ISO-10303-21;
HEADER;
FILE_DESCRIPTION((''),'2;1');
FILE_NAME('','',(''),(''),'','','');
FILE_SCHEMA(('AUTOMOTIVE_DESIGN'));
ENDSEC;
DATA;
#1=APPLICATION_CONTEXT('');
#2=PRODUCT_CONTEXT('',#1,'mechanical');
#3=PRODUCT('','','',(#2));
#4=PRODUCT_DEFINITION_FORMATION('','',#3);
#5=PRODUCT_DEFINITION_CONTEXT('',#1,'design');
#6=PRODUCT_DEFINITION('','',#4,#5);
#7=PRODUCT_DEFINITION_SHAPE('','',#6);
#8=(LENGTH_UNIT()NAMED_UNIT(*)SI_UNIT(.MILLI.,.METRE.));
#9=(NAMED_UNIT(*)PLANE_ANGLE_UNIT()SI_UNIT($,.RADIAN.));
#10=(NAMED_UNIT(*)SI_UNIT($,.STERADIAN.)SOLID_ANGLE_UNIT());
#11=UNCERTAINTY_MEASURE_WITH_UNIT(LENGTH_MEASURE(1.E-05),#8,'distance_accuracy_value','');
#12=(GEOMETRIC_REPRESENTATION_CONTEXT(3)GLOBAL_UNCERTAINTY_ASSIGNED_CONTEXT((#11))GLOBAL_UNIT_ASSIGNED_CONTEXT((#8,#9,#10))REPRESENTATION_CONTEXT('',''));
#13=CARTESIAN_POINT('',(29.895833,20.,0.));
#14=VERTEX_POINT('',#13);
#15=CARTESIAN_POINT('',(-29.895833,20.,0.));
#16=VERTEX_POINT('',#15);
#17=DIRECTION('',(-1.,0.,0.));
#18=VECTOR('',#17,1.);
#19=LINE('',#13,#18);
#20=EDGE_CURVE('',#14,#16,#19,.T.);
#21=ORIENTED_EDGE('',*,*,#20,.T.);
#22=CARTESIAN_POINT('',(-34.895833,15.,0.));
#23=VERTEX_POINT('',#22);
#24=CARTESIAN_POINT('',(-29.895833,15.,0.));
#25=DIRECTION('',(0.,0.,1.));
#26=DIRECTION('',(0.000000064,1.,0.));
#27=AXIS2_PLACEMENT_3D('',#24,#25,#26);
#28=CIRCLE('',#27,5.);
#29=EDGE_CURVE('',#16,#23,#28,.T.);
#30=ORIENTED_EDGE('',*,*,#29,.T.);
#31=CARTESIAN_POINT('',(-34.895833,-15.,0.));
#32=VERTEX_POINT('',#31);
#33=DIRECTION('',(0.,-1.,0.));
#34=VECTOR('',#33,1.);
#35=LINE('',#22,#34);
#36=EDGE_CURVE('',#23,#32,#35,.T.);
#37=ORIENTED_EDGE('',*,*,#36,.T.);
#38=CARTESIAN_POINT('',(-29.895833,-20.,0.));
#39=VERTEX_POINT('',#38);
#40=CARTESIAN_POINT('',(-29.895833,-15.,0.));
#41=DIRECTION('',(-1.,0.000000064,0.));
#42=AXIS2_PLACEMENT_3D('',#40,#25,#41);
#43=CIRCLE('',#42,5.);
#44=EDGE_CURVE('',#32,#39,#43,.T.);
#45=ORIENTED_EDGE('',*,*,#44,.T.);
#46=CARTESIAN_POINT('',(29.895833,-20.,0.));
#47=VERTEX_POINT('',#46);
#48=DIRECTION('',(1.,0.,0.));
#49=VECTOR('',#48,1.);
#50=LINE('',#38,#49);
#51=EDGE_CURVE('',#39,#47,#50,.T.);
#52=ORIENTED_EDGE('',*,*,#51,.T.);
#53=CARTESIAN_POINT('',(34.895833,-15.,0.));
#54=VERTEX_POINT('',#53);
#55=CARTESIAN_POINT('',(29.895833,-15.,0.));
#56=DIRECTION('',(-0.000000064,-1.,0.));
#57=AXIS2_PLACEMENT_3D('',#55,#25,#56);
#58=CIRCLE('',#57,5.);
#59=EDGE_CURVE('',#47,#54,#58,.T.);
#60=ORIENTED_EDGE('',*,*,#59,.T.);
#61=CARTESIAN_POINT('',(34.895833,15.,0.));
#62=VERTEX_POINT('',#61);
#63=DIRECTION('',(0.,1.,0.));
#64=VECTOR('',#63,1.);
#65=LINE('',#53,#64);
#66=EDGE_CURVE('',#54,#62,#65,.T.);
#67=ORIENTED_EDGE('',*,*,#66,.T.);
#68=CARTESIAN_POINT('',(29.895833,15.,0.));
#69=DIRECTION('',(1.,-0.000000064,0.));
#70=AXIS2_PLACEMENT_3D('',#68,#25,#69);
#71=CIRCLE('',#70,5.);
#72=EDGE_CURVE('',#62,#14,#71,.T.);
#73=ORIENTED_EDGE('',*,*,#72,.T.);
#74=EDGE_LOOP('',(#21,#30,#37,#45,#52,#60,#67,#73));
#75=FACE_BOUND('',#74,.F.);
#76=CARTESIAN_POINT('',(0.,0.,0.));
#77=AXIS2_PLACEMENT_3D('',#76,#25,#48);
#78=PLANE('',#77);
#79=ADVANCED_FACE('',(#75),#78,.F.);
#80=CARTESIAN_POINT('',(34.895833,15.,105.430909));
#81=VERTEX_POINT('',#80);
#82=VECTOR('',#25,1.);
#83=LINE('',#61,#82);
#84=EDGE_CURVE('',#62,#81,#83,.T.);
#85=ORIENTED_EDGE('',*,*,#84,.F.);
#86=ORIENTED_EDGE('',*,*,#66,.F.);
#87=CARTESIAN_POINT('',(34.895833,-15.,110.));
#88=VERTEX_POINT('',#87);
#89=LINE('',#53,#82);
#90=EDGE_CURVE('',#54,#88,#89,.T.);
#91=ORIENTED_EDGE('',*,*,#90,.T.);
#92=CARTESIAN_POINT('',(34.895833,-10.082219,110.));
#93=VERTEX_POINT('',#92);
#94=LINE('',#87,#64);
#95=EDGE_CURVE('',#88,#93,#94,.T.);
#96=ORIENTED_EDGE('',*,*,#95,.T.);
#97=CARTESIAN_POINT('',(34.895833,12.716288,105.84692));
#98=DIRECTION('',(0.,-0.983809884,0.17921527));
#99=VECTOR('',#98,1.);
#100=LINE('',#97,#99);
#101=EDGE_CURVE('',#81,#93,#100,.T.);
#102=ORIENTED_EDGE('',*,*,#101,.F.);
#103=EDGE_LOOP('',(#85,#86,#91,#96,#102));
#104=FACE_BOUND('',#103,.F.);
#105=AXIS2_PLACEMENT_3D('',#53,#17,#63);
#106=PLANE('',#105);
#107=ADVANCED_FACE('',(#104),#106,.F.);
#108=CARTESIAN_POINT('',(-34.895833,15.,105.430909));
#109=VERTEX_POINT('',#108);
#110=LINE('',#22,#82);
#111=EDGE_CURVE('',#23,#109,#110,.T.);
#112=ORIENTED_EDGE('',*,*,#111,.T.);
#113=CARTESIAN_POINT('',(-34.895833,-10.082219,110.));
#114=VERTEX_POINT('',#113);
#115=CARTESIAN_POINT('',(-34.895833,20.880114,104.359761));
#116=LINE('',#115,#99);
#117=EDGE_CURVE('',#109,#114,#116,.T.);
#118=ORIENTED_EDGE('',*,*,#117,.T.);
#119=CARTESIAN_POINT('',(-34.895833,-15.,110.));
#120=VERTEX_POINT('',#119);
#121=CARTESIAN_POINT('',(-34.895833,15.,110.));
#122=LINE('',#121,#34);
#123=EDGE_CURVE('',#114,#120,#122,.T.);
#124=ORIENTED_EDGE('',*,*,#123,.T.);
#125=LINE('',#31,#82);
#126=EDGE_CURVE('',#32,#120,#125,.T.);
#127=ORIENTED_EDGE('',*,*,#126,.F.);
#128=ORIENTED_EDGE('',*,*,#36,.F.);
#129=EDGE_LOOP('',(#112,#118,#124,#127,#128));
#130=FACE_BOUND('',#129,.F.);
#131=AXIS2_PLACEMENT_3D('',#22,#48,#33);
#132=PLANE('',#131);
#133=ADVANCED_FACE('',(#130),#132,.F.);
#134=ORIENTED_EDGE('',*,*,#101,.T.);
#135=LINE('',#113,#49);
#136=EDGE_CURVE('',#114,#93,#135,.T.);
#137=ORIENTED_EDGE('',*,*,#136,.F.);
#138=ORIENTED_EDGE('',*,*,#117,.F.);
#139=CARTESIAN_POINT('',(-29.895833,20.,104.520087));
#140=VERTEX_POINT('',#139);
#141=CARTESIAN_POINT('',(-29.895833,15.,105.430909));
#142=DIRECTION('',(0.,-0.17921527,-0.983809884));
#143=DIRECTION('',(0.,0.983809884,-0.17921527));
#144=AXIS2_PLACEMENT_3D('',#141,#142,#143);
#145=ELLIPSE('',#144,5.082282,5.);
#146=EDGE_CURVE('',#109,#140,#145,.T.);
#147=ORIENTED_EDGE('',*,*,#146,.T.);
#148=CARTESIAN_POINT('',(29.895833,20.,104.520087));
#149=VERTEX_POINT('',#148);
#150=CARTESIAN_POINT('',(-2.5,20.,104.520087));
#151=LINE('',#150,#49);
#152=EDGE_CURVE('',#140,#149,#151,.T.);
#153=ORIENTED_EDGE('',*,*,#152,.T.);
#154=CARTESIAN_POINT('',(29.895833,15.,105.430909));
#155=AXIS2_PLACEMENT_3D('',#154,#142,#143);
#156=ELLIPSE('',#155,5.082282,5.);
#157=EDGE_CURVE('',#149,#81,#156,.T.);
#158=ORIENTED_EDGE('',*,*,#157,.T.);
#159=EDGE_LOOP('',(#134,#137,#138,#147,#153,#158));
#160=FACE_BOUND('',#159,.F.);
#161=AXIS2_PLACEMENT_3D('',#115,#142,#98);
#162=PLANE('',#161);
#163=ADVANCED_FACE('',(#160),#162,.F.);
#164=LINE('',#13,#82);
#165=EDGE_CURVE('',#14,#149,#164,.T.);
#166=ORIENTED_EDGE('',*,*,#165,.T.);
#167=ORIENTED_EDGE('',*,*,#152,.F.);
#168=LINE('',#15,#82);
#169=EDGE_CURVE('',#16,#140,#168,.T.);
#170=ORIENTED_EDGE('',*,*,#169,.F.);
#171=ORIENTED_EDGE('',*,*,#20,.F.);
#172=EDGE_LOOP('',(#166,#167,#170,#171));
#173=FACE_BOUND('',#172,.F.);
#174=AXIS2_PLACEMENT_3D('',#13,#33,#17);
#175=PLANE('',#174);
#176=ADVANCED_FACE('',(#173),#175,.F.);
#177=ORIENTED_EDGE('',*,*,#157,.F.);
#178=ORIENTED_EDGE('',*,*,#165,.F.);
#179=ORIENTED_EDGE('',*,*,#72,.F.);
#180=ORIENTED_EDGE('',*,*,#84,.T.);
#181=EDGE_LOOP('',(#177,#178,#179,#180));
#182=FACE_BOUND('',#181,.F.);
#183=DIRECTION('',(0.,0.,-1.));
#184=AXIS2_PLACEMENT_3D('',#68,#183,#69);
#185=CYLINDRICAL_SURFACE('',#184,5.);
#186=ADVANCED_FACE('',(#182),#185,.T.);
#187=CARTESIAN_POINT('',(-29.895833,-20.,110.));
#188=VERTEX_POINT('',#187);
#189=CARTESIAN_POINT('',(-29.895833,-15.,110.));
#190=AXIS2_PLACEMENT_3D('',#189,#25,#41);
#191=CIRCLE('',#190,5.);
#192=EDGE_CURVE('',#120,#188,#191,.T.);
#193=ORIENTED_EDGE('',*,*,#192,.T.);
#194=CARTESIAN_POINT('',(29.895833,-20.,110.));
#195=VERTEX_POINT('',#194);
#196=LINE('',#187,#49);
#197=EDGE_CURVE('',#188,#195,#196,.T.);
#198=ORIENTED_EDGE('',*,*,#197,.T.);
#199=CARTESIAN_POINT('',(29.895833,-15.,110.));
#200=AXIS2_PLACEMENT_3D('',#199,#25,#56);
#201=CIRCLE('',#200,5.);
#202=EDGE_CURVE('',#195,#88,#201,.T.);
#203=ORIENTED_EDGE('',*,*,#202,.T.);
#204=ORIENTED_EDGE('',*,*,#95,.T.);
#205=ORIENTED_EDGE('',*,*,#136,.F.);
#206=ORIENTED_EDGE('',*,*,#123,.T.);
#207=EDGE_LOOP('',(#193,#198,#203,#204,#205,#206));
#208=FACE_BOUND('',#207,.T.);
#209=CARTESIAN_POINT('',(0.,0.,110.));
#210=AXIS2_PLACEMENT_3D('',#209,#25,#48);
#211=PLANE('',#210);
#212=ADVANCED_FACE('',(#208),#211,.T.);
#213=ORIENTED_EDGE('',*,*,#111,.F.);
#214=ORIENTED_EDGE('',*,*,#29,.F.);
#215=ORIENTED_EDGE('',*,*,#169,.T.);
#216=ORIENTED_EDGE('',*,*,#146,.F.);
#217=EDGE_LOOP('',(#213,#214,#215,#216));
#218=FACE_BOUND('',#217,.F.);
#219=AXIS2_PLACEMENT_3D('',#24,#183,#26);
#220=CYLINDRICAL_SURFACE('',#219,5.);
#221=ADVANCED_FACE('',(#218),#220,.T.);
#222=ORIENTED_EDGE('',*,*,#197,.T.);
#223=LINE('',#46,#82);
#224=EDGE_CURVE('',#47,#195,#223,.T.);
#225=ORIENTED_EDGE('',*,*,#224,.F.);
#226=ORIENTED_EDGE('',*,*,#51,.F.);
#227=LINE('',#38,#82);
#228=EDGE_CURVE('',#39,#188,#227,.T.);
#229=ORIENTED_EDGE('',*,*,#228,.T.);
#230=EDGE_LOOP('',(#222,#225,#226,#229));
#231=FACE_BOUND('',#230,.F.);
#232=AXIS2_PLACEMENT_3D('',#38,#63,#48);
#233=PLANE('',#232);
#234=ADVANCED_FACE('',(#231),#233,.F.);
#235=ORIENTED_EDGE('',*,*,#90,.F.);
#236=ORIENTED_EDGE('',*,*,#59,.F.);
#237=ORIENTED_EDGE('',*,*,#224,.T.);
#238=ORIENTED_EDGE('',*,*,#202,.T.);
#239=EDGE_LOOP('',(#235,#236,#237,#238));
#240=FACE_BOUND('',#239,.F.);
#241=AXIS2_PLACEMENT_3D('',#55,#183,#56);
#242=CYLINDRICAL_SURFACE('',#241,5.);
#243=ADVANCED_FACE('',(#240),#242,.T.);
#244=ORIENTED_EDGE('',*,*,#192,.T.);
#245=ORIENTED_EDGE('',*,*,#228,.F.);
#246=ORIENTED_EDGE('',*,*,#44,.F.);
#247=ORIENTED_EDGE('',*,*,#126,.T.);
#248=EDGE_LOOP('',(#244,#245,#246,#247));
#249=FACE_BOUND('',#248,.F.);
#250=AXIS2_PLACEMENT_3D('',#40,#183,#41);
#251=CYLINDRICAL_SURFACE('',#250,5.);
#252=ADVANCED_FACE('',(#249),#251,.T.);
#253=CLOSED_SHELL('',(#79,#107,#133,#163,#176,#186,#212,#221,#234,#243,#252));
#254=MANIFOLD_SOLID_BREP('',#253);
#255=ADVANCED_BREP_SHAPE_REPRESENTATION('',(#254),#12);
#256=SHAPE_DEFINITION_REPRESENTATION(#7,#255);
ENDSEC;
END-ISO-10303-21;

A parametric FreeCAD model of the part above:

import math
import FreeCAD as App
import Part
import Sketcher
Q = App.Units.Quantity

doc = App.newDocument("Part")
params = doc.addObject("Spreadsheet::Sheet", "Params")
for row, (alias, value) in enumerate([
    ("sketch1_radius", "5 mm"),
    ("sketch1_height", "30 mm"),
    ("pad1_length", "110 mm"),
], start=1):
    params.set(f"A{row}", alias)
    params.set(f"B{row}", "=" + value)
    params.setAlias(f"B{row}", alias)

body = doc.addObject("PartDesign::Body", "Body")

# Sketch on XY plane
sketch1 = body.newObject("Sketcher::SketchObject", "Sketch")
sketch1.AttachmentSupport = (doc.getObject("XY_Plane"), [""])
sketch1.MapMode = "FlatFace"
sketch1.addGeometry(Part.ArcOfCircle(Part.Circle(App.Vector(-29.9, -15, 0), App.Vector(0, 0, 1), 5), math.radians(180), math.radians(270)), False)
sketch1.addGeometry(Part.LineSegment(App.Vector(-29.9, -20, 0), App.Vector(29.9, -20, 0)), False)
sketch1.addGeometry(Part.ArcOfCircle(Part.Circle(App.Vector(29.9, -15, 0), App.Vector(0, 0, 1), 5), math.radians(-90), math.radians(0)), False)
sketch1.addGeometry(Part.LineSegment(App.Vector(34.9, -15, 0), App.Vector(34.9, 15, 0)), False)
sketch1.addGeometry(Part.ArcOfCircle(Part.Circle(App.Vector(29.9, 15, 0), App.Vector(0, 0, 1), 5), math.radians(0), math.radians(90)), False)
sketch1.addGeometry(Part.LineSegment(App.Vector(29.9, 20, 0), App.Vector(-29.9, 20, 0)), False)
sketch1.addGeometry(Part.ArcOfCircle(Part.Circle(App.Vector(-29.9, 15, 0), App.Vector(0, 0, 1), 5), math.radians(90), math.radians(180)), False)
sketch1.addGeometry(Part.LineSegment(App.Vector(-34.9, 15, 0), App.Vector(-34.9, -15, 0)), False)
sketch1.addConstraint(Sketcher.Constraint("Tangent", 0, 2, 1, 1))
sketch1.addConstraint(Sketcher.Constraint("Tangent", 1, 2, 2, 1))
sketch1.addConstraint(Sketcher.Constraint("Tangent", 2, 2, 3, 1))
sketch1.addConstraint(Sketcher.Constraint("Tangent", 3, 2, 4, 1))
sketch1.addConstraint(Sketcher.Constraint("Tangent", 4, 2, 5, 1))
sketch1.addConstraint(Sketcher.Constraint("Tangent", 5, 2, 6, 1))
sketch1.addConstraint(Sketcher.Constraint("Tangent", 6, 2, 7, 1))
sketch1.addConstraint(Sketcher.Constraint("Tangent", 7, 2, 0, 1))
sketch1.addConstraint(Sketcher.Constraint("Horizontal", 1))
sketch1.addConstraint(Sketcher.Constraint("Vertical", 3))
sketch1.addConstraint(Sketcher.Constraint("Horizontal", 5))
sketch1.addConstraint(Sketcher.Constraint("Vertical", 7))
sketch1.addConstraint(Sketcher.Constraint("Equal", 0, 2))
sketch1.addConstraint(Sketcher.Constraint("Equal", 2, 4))
sketch1.addConstraint(Sketcher.Constraint("Equal", 4, 6))
sketch1.addConstraint(Sketcher.Constraint("Symmetric", 0, 3, 4, 3, -1, 1))
sketch1.addConstraint(Sketcher.Constraint("Radius", 0, Q("5 mm")))
sketch1.addConstraint(Sketcher.Constraint("DistanceY", 3, 1, 3, 2, Q("30 mm")))
sketch1.addConstraint(Sketcher.Constraint("DistanceX", 1, 1, 1, 2, Q("59.791666 mm")))
sketch1.setExpression("Constraints[16]", "Params.sketch1_radius")
sketch1.setExpression("Constraints[17]", "Params.sketch1_height")
pad1 = body.newObject("PartDesign::Pad", "Pad")
pad1.Profile = sketch1
pad1.setExpression("Length", "Params.pad1_length")

# Sketch on YZ plane
sketch2 = body.newObject("Sketcher::SketchObject", "Sketch001")
sketch2.AttachmentSupport = (doc.getObject("YZ_Plane"), [""])
sketch2.MapMode = "FlatFace"
sketch2.AttachmentOffset = App.Placement(App.Vector(0, 0, -34.895833), App.Rotation())
sketch2.addGeometry(Part.LineSegment(App.Vector(21, 110, 0), App.Vector(21, 104, 0)), False)
sketch2.addGeometry(Part.LineSegment(App.Vector(21, 104, 0), App.Vector(-10, 110, 0)), False)
sketch2.addGeometry(Part.LineSegment(App.Vector(-10, 110, 0), App.Vector(21, 110, 0)), False)
sketch2.addConstraint(Sketcher.Constraint("Coincident", 0, 2, 1, 1))
sketch2.addConstraint(Sketcher.Constraint("Coincident", 1, 2, 2, 1))
sketch2.addConstraint(Sketcher.Constraint("Coincident", 2, 2, 0, 1))
sketch2.addConstraint(Sketcher.Constraint("Vertical", 0))
sketch2.addConstraint(Sketcher.Constraint("Horizontal", 2))
sketch2.addConstraint(Sketcher.Constraint("DistanceY", -1, 1, 1, 2, Q("110 mm")))
sketch2.addConstraint(Sketcher.Constraint("DistanceY", 0, 2, 0, 1, Q("5.640239 mm")))
sketch2.addConstraint(Sketcher.Constraint("DistanceX", 2, 1, 2, 2, Q("30.962333 mm")))
sketch2.addConstraint(Sketcher.Constraint("DistanceX", 1, 2, -1, 1, Q("10.082219 mm")))
pocket1 = body.newObject("PartDesign::Pocket", "Pocket")
pocket1.Profile = sketch2
pocket1.Type = "ThroughAll"
pocket1.Reversed = True

doc.recompute()
